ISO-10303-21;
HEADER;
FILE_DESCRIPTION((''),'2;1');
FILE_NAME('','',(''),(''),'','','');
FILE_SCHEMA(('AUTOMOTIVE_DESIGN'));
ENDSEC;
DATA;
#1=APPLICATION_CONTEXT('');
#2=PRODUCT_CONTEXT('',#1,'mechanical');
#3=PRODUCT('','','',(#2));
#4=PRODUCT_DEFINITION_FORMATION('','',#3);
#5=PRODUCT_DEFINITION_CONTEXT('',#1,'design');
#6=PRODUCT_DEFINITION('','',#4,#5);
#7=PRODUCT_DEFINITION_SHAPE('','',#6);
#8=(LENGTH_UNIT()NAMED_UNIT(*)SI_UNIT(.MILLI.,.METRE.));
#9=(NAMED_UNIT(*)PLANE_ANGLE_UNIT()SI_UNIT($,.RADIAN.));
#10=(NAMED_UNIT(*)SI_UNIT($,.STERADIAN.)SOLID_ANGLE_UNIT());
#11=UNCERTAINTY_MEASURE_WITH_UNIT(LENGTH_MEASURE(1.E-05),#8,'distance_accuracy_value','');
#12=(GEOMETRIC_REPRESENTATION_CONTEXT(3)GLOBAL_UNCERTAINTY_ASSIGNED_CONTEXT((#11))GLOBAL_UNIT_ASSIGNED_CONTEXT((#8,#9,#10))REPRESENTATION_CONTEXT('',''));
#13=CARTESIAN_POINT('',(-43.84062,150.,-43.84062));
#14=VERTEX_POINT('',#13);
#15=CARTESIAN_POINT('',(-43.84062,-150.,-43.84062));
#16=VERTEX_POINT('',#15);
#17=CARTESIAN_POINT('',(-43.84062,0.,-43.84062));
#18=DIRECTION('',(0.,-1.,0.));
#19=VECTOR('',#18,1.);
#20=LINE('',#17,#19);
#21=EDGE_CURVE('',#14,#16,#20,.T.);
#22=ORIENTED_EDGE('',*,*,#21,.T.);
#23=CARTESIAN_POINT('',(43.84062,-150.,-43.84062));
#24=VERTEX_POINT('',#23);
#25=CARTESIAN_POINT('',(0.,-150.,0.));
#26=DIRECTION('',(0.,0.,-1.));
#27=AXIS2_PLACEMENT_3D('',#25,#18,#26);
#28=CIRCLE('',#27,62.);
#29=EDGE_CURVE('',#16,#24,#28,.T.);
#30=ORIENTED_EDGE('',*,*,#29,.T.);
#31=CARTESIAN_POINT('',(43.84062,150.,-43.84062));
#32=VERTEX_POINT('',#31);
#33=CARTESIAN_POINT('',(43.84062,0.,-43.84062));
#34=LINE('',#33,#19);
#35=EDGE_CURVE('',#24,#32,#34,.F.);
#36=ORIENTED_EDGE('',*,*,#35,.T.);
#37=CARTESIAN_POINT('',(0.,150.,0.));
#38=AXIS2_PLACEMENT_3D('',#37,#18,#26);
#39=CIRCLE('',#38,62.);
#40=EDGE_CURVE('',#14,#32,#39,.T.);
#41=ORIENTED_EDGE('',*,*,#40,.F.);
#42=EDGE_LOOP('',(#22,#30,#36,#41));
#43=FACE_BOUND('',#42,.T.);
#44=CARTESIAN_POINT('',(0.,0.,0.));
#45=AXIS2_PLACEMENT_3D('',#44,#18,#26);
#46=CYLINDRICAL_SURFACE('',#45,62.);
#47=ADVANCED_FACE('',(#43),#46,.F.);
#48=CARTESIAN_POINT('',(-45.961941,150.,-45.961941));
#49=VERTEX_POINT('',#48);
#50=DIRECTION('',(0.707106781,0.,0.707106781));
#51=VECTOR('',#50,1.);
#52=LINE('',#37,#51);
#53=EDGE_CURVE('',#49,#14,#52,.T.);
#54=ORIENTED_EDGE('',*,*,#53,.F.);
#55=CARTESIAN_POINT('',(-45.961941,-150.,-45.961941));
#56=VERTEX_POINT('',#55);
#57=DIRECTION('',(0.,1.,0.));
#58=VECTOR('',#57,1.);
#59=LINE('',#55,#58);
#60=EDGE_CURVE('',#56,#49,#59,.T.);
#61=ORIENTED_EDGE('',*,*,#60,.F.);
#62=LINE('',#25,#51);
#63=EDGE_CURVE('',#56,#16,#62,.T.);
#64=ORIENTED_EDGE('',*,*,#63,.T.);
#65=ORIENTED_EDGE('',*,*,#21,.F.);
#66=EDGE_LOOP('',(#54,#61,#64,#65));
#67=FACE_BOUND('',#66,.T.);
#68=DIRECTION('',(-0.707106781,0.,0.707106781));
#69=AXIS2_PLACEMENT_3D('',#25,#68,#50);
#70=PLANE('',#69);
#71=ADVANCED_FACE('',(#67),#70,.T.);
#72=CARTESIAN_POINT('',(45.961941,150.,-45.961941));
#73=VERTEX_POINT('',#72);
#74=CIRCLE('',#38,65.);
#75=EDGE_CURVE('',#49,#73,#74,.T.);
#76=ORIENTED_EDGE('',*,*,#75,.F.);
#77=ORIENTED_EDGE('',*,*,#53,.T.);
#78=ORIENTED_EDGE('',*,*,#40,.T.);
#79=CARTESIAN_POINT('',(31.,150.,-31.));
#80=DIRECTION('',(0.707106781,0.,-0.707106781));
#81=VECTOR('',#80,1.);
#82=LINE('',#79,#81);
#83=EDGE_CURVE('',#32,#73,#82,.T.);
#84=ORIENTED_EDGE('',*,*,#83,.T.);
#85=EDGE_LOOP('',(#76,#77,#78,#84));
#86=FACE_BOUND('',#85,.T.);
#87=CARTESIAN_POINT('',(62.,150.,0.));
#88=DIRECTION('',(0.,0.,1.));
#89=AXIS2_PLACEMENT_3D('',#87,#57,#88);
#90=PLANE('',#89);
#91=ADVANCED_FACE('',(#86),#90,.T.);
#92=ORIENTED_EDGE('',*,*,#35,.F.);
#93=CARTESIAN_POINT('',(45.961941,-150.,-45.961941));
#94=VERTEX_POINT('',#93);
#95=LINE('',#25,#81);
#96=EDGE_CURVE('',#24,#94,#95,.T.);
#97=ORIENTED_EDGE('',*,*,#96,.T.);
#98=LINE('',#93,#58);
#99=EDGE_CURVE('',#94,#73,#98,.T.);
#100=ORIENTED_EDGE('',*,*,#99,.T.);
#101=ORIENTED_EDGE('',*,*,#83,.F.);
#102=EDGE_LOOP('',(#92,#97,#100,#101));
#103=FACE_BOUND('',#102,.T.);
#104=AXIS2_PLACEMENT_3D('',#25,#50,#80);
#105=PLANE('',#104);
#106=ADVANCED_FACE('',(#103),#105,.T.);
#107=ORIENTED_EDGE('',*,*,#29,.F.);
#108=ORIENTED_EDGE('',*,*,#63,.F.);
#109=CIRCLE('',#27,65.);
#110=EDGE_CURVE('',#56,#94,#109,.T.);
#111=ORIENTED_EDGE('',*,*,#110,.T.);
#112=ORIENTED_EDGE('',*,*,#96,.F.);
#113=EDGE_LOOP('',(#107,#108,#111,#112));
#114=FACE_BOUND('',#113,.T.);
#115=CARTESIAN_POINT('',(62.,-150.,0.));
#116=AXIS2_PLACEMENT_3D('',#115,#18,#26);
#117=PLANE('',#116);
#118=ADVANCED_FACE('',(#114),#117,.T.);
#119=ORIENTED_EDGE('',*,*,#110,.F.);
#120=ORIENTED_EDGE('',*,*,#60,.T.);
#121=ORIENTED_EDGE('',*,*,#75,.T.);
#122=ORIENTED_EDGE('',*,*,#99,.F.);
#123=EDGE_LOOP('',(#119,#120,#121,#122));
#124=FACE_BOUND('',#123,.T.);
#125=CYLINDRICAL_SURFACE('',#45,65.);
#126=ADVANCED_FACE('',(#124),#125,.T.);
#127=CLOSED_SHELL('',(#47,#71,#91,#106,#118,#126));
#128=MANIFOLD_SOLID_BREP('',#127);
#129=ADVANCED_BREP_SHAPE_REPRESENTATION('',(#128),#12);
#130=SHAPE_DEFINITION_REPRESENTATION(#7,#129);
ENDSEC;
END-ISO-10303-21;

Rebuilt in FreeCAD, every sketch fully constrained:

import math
import FreeCAD as App
import Part
import Sketcher


def add_polygon(sketch, points):
    """Adds a closed chain of lines whose ends are joined by coincident constraints."""
    first, n = sketch.GeometryCount, len(points)
    for a, b in zip(points, points[1:] + points[:1]):
        sketch.addGeometry(Part.LineSegment(App.Vector(*a, 0), App.Vector(*b, 0)), False)
    for i in range(n):
        sketch.addConstraint(Sketcher.Constraint("Coincident", first + i, 2, first + (i + 1) % n, 1))

doc = App.newDocument("Part")
body = doc.addObject("PartDesign::Body", "Body")

# Sketch on XY plane
sketch1 = body.newObject("Sketcher::SketchObject", "Sketch")
sketch1.AttachmentSupport = (doc.getObject("XY_Plane"), [""])
sketch1.MapMode = "FlatFace"
add_polygon(sketch1, [(62, 150), (62, -150), (65, -150), (65, 150)])  # lines 0-3
sketch1.addConstraint([
    Sketcher.Constraint("Vertical", 0),
    Sketcher.Constraint("Horizontal", 1),
    Sketcher.Constraint("Vertical", 2),
    Sketcher.Constraint("Horizontal", 3),
    Sketcher.Constraint("DistanceX", 1, 1, 1, 2, 3.0),
    Sketcher.Constraint("DistanceY", 0, 2, 0, 1, 300.0),
    Sketcher.Constraint("DistanceX", -1, 1, 0, 2, 62.0),
    Sketcher.Constraint("DistanceY", 0, 2, -1, 1, 150.0),
])
revolution = body.newObject("PartDesign::Revolution", "Revolution")
revolution.Profile = sketch1
revolution.ReferenceAxis = (sketch1, ["V_Axis"])
revolution.Angle = 360

# Sketch on XZ plane
sketch2 = body.newObject("Sketcher::SketchObject", "Sketch001")
sketch2.AttachmentSupport = (doc.getObject("XZ_Plane"), [""])
sketch2.MapMode = "FlatFace"
sketch2.AttachmentOffset = App.Placement(App.Vector(0, 0, -150), App.Rotation())
add_polygon(sketch2, [(-101.185, -101.185), (-101.185, 101.185), (101.185, 101.185), (101.185, -101.185)])  # lines 0-3
sketch2.addGeometry(Part.LineSegment(App.Vector(45.961941, -45.961941, 0), App.Vector(0, 0, 0)), False)  # 4
sketch2.addGeometry(Part.LineSegment(App.Vector(0, 0, 0), App.Vector(-45.961941, -45.961941, 0)), False)  # 5
sketch2.addGeometry(Part.ArcOfCircle(Part.Circle(App.Vector(0, 0, 0), App.Vector(0, 0, 1), 65), math.radians(-135), math.radians(-45)), False)  # 6
sketch2.addConstraint([
    Sketcher.Constraint("Coincident", 4, 2, 5, 1),
    Sketcher.Constraint("Coincident", 5, 2, 6, 1),
    Sketcher.Constraint("Coincident", 6, 2, 4, 1),
    Sketcher.Constraint("Vertical", 0),
    Sketcher.Constraint("Horizontal", 1),
    Sketcher.Constraint("Vertical", 2),
    Sketcher.Constraint("Horizontal", 3),
    Sketcher.Constraint("Coincident", 6, 3, -1, 1),
    Sketcher.Constraint("Coincident", 4, 2, -1, 1),
    Sketcher.Constraint("Symmetric", 0, 2, 2, 2, -1, 1),
    Sketcher.Constraint("Perpendicular", 4, 5),
    Sketcher.Constraint("Horizontal", 5, 2, 6, 2),
    Sketcher.Constraint("Equal", 3, 0),
    Sketcher.Constraint("Radius", 6, 65.0),
    Sketcher.Constraint("DistanceX", 1, 1, 1, 2, 202.37),
])
pocket1 = body.newObject("PartDesign::Pocket", "Pocket")
pocket1.Profile = sketch2
pocket1.Type = "ThroughAll"
pocket1.Reversed = True

doc.recompute()
